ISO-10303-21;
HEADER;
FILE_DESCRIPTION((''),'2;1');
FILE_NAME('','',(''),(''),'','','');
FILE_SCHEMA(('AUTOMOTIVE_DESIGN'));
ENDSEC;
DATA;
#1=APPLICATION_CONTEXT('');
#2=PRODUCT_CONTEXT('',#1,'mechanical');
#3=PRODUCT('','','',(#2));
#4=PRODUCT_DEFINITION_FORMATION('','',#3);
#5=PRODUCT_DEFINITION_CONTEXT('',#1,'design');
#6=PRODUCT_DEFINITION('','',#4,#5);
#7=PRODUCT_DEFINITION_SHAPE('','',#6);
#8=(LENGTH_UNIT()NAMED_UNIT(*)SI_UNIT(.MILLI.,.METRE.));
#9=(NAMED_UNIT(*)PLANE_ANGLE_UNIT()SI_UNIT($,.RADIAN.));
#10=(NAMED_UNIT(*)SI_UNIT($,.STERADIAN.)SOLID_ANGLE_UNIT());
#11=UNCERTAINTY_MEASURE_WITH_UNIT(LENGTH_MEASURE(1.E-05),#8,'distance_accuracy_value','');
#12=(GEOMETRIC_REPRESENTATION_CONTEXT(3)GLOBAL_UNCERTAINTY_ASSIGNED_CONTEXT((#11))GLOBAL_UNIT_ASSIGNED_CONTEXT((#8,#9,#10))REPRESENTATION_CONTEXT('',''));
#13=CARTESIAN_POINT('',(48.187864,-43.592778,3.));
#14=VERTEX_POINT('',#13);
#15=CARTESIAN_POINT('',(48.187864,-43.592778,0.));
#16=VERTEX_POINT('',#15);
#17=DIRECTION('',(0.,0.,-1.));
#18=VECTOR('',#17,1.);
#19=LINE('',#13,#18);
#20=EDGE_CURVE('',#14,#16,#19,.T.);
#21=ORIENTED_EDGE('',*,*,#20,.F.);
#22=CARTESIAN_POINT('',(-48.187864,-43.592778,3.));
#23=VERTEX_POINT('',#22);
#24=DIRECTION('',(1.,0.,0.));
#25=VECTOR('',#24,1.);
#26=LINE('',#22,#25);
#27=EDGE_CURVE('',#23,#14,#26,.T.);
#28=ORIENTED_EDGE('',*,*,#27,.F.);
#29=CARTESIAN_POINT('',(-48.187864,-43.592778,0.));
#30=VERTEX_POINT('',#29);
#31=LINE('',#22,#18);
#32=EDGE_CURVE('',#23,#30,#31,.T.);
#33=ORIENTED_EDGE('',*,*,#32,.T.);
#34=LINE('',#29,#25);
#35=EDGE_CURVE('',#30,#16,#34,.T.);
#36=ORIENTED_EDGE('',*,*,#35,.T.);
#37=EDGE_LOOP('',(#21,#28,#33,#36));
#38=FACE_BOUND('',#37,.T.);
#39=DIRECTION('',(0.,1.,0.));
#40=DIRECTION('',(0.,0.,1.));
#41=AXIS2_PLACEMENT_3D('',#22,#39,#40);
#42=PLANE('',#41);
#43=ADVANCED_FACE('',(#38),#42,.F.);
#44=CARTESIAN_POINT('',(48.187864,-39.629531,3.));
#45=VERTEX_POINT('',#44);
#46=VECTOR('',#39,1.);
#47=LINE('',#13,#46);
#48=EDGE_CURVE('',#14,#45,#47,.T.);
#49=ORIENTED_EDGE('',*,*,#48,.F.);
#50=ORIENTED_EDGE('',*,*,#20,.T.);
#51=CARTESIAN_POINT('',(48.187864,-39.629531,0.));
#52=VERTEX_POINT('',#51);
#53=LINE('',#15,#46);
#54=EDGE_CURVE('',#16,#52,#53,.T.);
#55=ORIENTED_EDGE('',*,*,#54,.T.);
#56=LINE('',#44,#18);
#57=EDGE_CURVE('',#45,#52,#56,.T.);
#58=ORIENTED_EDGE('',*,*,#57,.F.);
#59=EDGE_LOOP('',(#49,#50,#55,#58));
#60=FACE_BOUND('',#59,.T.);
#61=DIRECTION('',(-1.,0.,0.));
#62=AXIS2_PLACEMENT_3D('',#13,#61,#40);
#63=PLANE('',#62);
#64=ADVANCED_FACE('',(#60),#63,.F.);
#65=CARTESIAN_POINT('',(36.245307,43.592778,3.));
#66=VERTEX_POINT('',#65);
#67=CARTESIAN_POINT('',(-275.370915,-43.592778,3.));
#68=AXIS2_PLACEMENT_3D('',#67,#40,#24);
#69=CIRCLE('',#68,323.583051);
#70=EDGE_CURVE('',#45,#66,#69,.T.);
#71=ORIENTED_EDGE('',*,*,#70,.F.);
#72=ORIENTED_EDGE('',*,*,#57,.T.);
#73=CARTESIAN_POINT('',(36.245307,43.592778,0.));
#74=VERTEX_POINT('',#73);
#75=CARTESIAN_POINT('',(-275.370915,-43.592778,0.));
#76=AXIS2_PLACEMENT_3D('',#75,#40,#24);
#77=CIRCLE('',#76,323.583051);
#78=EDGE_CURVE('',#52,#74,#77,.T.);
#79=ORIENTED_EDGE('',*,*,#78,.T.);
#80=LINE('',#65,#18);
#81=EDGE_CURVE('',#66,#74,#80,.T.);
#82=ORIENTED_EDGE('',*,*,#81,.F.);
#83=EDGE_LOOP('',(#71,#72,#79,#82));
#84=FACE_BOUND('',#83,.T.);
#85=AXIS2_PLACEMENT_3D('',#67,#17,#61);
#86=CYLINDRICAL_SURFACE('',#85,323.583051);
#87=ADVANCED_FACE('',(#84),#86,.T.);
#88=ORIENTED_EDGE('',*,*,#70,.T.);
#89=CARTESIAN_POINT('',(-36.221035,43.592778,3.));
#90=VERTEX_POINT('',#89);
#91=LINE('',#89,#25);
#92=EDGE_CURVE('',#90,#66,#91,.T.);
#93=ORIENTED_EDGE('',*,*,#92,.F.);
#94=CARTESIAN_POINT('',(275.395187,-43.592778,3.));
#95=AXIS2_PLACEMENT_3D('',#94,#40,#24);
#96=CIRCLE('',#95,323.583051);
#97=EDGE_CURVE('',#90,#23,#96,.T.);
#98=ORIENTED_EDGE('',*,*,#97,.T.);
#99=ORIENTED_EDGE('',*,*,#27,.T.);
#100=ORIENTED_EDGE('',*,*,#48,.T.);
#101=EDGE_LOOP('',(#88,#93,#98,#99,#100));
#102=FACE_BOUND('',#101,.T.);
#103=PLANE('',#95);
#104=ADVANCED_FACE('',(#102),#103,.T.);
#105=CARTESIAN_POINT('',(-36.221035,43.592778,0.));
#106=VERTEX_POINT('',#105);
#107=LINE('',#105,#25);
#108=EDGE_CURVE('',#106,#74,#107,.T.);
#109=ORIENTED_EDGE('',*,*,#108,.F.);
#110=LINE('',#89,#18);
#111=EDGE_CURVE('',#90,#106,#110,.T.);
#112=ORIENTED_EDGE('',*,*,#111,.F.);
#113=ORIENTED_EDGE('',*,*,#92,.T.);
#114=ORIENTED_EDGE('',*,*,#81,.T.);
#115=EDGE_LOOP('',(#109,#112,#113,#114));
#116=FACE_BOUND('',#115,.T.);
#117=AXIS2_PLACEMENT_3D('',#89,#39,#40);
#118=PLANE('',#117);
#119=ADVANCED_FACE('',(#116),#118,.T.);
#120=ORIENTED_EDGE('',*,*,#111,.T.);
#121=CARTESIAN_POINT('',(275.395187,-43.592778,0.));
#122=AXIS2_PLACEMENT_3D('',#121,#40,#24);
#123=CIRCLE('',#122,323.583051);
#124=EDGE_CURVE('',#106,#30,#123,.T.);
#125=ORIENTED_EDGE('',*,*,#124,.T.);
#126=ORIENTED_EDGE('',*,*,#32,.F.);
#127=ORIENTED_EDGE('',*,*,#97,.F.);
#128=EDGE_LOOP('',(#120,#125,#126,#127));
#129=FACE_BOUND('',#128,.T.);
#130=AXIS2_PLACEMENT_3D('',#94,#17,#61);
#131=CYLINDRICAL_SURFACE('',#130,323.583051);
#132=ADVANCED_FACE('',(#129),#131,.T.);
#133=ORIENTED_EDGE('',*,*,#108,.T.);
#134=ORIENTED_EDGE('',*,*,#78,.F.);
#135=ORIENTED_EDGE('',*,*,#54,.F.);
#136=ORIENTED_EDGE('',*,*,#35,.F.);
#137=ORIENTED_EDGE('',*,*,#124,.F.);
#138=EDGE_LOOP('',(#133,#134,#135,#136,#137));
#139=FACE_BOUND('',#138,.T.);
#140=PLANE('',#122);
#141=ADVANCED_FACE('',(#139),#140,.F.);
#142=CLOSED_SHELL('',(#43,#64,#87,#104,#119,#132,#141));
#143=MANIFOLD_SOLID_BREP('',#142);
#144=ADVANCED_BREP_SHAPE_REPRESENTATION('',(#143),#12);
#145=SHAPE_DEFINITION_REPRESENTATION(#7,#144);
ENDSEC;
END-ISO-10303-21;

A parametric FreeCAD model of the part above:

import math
import FreeCAD as App
import Part
import Sketcher

V = App.Vector
Q = App.Units.Quantity

doc = App.newDocument("Part")
body = doc.addObject("PartDesign::Body", "Body")

sketch1 = body.newObject("Sketcher::SketchObject", "Sketch")
sketch1.AttachmentSupport = (doc.getObject("XY_Plane"), [""])
sketch1.MapMode = "FlatFace"
sketch1.addGeometry(Part.LineSegment(V(-48.2, -43.6, 0), V(48.2, -43.6, 0)), False)
sketch1.addGeometry(Part.LineSegment(V(48.2, -43.6, 0), V(48.2, -39.6, 0)), False)
sketch1.addGeometry(Part.ArcOfCircle(Part.Circle(V(-275.4, -43.6, 0), V(0, 0, 1), 323.6), math.radians(0.7), math.radians(15.63)), False)
sketch1.addGeometry(Part.LineSegment(V(36.2, 43.6, 0), V(-36.2, 43.6, 0)), False)
sketch1.addGeometry(Part.ArcOfCircle(Part.Circle(V(275.4, -43.6, 0), V(0, 0, 1), 323.6), math.radians(164.37), math.radians(180)), False)
sketch1.addConstraint(Sketcher.Constraint("Coincident", 0, 2, 1, 1))
sketch1.addConstraint(Sketcher.Constraint("Coincident", 1, 2, 2, 1))
sketch1.addConstraint(Sketcher.Constraint("Coincident", 2, 2, 3, 1))
sketch1.addConstraint(Sketcher.Constraint("Coincident", 3, 2, 4, 1))
sketch1.addConstraint(Sketcher.Constraint("Coincident", 4, 2, 0, 1))
sketch1.addConstraint(Sketcher.Constraint("Horizontal", 0))
sketch1.addConstraint(Sketcher.Constraint("Vertical", 1))
sketch1.addConstraint(Sketcher.Constraint("Horizontal", 3))
sketch1.addConstraint(Sketcher.Constraint("Equal", 2, 4))
sketch1.addConstraint(Sketcher.Constraint("Horizontal", 2, 3, 4, 3))
sketch1.addConstraint(Sketcher.Constraint("Horizontal", 4, 3, 0, 2))
sketch1.addConstraint(Sketcher.Constraint("Radius", 2, Q("323.583051 mm")))
sketch1.addConstraint(Sketcher.Constraint("DistanceX", 0, 1, 0, 2, Q("96.375728 mm")))
sketch1.addConstraint(Sketcher.Constraint("DistanceX", 3, 2, 3, 1, Q("72.466342 mm")))
sketch1.addConstraint(Sketcher.Constraint("DistanceX", 2, 3, 4, 3, Q("550.766102 mm")))
sketch1.addConstraint(Sketcher.Constraint("DistanceY", 2, 3, -1, 1, Q("43.592778 mm")))
sketch1.addConstraint(Sketcher.Constraint("DistanceX", 2, 3, -1, 1, Q("275.370915 mm")))
pad1 = body.newObject("PartDesign::Pad", "Pad")
pad1.Profile = sketch1
pad1.Length = 3

doc.recompute()
